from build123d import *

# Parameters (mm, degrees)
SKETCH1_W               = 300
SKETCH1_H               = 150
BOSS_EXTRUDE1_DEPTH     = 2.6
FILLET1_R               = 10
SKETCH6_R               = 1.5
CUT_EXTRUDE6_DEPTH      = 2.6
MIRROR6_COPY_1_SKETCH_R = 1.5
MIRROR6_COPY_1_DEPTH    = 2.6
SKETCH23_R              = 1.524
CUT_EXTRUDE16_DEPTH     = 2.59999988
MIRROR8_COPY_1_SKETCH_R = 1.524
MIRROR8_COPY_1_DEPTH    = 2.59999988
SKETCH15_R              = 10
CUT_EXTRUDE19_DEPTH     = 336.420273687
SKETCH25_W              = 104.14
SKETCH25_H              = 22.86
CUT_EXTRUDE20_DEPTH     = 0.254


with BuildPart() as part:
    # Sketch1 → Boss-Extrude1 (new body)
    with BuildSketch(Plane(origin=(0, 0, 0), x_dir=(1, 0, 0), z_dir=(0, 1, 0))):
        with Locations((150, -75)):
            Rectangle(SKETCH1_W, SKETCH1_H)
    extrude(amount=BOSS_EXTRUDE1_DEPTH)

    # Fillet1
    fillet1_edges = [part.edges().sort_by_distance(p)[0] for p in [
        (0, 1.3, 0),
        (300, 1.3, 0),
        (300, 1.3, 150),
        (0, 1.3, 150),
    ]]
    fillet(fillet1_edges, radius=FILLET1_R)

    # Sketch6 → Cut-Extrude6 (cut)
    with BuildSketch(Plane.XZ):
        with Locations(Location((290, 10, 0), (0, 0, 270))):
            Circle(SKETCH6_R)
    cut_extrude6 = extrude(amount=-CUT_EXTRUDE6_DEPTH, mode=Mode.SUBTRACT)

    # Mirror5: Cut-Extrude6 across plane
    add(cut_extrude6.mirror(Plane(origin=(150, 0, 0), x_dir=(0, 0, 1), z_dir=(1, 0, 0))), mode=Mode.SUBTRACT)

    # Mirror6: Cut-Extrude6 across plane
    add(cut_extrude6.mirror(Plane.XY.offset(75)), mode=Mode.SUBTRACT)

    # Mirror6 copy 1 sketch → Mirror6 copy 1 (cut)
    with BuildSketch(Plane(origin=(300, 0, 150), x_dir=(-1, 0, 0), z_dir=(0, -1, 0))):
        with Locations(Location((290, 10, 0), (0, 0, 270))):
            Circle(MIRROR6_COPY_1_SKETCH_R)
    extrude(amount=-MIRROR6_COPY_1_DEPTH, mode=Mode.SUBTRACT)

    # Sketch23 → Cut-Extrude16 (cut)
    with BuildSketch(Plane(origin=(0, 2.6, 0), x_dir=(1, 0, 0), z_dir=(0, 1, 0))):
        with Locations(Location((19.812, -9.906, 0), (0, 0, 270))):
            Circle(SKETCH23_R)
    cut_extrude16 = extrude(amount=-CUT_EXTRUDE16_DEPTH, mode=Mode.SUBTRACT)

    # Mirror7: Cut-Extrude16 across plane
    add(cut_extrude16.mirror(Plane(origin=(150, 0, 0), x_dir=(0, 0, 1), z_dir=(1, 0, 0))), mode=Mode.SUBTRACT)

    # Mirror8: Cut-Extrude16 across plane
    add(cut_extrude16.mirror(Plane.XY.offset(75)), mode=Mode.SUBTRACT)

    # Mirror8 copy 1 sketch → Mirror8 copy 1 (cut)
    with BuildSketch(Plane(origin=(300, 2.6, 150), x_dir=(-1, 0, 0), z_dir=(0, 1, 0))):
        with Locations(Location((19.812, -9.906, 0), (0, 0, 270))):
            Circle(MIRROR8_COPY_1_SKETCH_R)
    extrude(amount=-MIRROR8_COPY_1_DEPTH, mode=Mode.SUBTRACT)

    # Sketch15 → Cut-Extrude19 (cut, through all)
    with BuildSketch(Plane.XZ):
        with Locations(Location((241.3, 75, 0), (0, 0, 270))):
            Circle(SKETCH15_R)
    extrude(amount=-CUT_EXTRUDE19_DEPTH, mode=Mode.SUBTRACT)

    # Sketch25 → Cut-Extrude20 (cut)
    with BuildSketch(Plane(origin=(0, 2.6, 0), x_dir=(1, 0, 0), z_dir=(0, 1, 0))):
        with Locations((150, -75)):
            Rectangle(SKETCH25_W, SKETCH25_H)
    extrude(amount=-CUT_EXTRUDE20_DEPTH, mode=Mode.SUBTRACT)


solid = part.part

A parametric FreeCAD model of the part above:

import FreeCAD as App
import Part
import Sketcher

V = App.Vector


def edges_at(feature, points):
    """Names of the edges that pass closest to the given points."""
    edges = feature.Shape.Edges
    near = lambda p: min(range(len(edges)), key=lambda i: edges[i].distToShape(Part.Vertex(*p))[0])
    return sorted({f"Edge{near(p) + 1}" for p in points})


def add_polygon(sketch, points):
    """Adds a closed chain of lines whose ends are joined by coincident constraints."""
    first, n = sketch.GeometryCount, len(points)
    for a, b in zip(points, points[1:] + points[:1]):
        sketch.addGeometry(Part.LineSegment(App.Vector(*a, 0), App.Vector(*b, 0)), False)
    for i in range(n):
        sketch.addConstraint(Sketcher.Constraint("Coincident", first + i, 2, first + (i + 1) % n, 1))

doc = App.newDocument("Part")
body = doc.addObject("PartDesign::Body", "Body")

sketch1 = body.newObject("Sketcher::SketchObject", "Sketch")
sketch1.AttachmentSupport = (doc.getObject("XZ_Plane"), [""])
sketch1.MapMode = "FlatFace"
add_polygon(sketch1, [(0, 0), (0, 150), (300, 150), (300, 0)])
sketch1.addConstraint(Sketcher.Constraint("Vertical", 0))
sketch1.addConstraint(Sketcher.Constraint("Horizontal", 1))
sketch1.addConstraint(Sketcher.Constraint("Vertical", 2))
sketch1.addConstraint(Sketcher.Constraint("Horizontal", 3))
sketch1.addConstraint(Sketcher.Constraint("Coincident", 3, 2, -1, 1))
sketch1.addConstraint(Sketcher.Constraint("DistanceX", 1, 1, 1, 2, 300.0))
sketch1.addConstraint(Sketcher.Constraint("DistanceY", 0, 1, 0, 2, 150.0))
pad1 = body.newObject("PartDesign::Pad", "Pad")
pad1.Profile = sketch1
pad1.Length = 2.6
pad1.Reversed = True
doc.recompute()

fillet = body.newObject("PartDesign::Fillet", "Fillet")
fillet.Base = (pad1, edges_at(pad1, [
    (0, 1.3, 0),
    (300, 1.3, 0),
    (300, 1.3, 150),
    (0, 1.3, 150),
]))
fillet.Radius = 10

sketch2 = body.newObject("Sketcher::SketchObject", "Sketch001")
sketch2.AttachmentSupport = (doc.getObject("XZ_Plane"), [""])
sketch2.MapMode = "FlatFace"
sketch2.addGeometry(Part.Circle(V(290, 10, 0), V(0, 0, 1), 1.5), False)
sketch2.addConstraint(Sketcher.Constraint("Diameter", 0, 3.0))
sketch2.addConstraint(Sketcher.Constraint("DistanceX", -1, 1, 0, 3, 290.0))
sketch2.addConstraint(Sketcher.Constraint("DistanceY", -1, 1, 0, 3, 10.0))
pocket1 = body.newObject("PartDesign::Pocket", "Pocket")
pocket1.Profile = sketch2
pocket1.Length = 2.6
doc.recompute()

datumplane = body.newObject("PartDesign::Plane", "DatumPlane")
datumplane.AttachmentSupport = (doc.getObject("YZ_Plane"), [""])
datumplane.MapMode = "FlatFace"
datumplane.AttachmentOffset = App.Placement(V(0, 0, 150), App.Rotation())
mirrored = body.newObject("PartDesign::Mirrored", "Mirrored")
mirrored.Originals = [pocket1]
mirrored.MirrorPlane = (datumplane, [""])
body.Tip = mirrored
doc.recompute()

datumplane2 = body.newObject("PartDesign::Plane", "DatumPlane001")
datumplane2.AttachmentSupport = (doc.getObject("XY_Plane"), [""])
datumplane2.MapMode = "FlatFace"
datumplane2.AttachmentOffset = App.Placement(V(0, 0, 75), App.Rotation())
mirrored2 = body.newObject("PartDesign::Mirrored", "Mirrored001")
mirrored2.Originals = [pocket1]
mirrored2.MirrorPlane = (datumplane2, [""])
body.Tip = mirrored2

sketch3 = body.newObject("Sketcher::SketchObject", "Sketch002")
sketch3.AttachmentSupport = (doc.getObject("XZ_Plane"), [""])
sketch3.MapMode = "FlatFace"
sketch3.addGeometry(Part.Circle(V(10, 140, 0), V(0, 0, 1), 1.5), False)
sketch3.addConstraint(Sketcher.Constraint("Diameter", 0, 3.0))
sketch3.addConstraint(Sketcher.Constraint("DistanceX", -1, 1, 0, 3, 10.0))
sketch3.addConstraint(Sketcher.Constraint("DistanceY", -1, 1, 0, 3, 140.0))
pocket2 = body.newObject("PartDesign::Pocket", "Pocket001")
pocket2.Profile = sketch3
pocket2.Length = 2.6

sketch4 = body.newObject("Sketcher::SketchObject", "Sketch003")
sketch4.AttachmentSupport = (doc.getObject("XZ_Plane"), [""])
sketch4.MapMode = "FlatFace"
sketch4.AttachmentOffset = App.Placement(V(0, 0, -2.6), App.Rotation())
sketch4.addGeometry(Part.Circle(V(19.8, 9.9, 0), V(0, 0, 1), 1.5), False)
sketch4.addConstraint(Sketcher.Constraint("Diameter", 0, 3.048))
sketch4.addConstraint(Sketcher.Constraint("DistanceX", -1, 1, 0, 3, 19.812))
sketch4.addConstraint(Sketcher.Constraint("DistanceY", -1, 1, 0, 3, 9.906))
pocket3 = body.newObject("PartDesign::Pocket", "Pocket002")
pocket3.Profile = sketch4
pocket3.Length = 2.6
pocket3.Reversed = True
doc.recompute()

datumplane3 = body.newObject("PartDesign::Plane", "DatumPlane002")
datumplane3.AttachmentSupport = (doc.getObject("YZ_Plane"), [""])
datumplane3.MapMode = "FlatFace"
datumplane3.AttachmentOffset = App.Placement(V(0, 0, 150), App.Rotation())
mirrored3 = body.newObject("PartDesign::Mirrored", "Mirrored002")
mirrored3.Originals = [pocket3]
mirrored3.MirrorPlane = (datumplane3, [""])
body.Tip = mirrored3
doc.recompute()

datumplane4 = body.newObject("PartDesign::Plane", "DatumPlane003")
datumplane4.AttachmentSupport = (doc.getObject("XY_Plane"), [""])
datumplane4.MapMode = "FlatFace"
datumplane4.AttachmentOffset = App.Placement(V(0, 0, 75), App.Rotation())
mirrored4 = body.newObject("PartDesign::Mirrored", "Mirrored003")
mirrored4.Originals = [pocket3]
mirrored4.MirrorPlane = (datumplane4, [""])
body.Tip = mirrored4

sketch5 = body.newObject("Sketcher::SketchObject", "Sketch004")
sketch5.AttachmentSupport = (doc.getObject("XZ_Plane"), [""])
sketch5.MapMode = "FlatFace"
sketch5.AttachmentOffset = App.Placement(V(0, 0, -2.6), App.Rotation())
sketch5.addGeometry(Part.Circle(V(280.2, 140.1, 0), V(0, 0, 1), 1.5), False)
sketch5.addConstraint(Sketcher.Constraint("Diameter", 0, 3.048))
sketch5.addConstraint(Sketcher.Constraint("DistanceX", -1, 1, 0, 3, 280.188))
sketch5.addConstraint(Sketcher.Constraint("DistanceY", -1, 1, 0, 3, 140.094))
pocket4 = body.newObject("PartDesign::Pocket", "Pocket003")
pocket4.Profile = sketch5
pocket4.Length = 2.6
pocket4.Reversed = True

sketch6 = body.newObject("Sketcher::SketchObject", "Sketch005")
sketch6.AttachmentSupport = (doc.getObject("XZ_Plane"), [""])
sketch6.MapMode = "FlatFace"
sketch6.addGeometry(Part.Circle(V(241, 75, 0), V(0, 0, 1), 10), False)
sketch6.addConstraint(Sketcher.Constraint("Diameter", 0, 20.0))
sketch6.addConstraint(Sketcher.Constraint("DistanceY", -1, 1, 0, 3, 75.0))
sketch6.addConstraint(Sketcher.Constraint("DistanceX", -1, 1, 0, 3, 241.3))
pocket5 = body.newObject("PartDesign::Pocket", "Pocket004")
pocket5.Profile = sketch6
pocket5.Type = "ThroughAll"

sketch7 = body.newObject("Sketcher::SketchObject", "Sketch006")
sketch7.AttachmentSupport = (doc.getObject("XZ_Plane"), [""])
sketch7.MapMode = "FlatFace"
sketch7.AttachmentOffset = App.Placement(V(0, 0, -2.6), App.Rotation())
add_polygon(sketch7, [(98, 64), (98, 86), (202, 86), (202, 64)])
sketch7.addConstraint(Sketcher.Constraint("Vertical", 0))
sketch7.addConstraint(Sketcher.Constraint("Horizontal", 1))
sketch7.addConstraint(Sketcher.Constraint("Vertical", 2))
sketch7.addConstraint(Sketcher.Constraint("Horizontal", 3))
sketch7.addConstraint(Sketcher.Constraint("DistanceX", 1, 1, 1, 2, 104.14))
sketch7.addConstraint(Sketcher.Constraint("DistanceY", 0, 1, 0, 2, 22.86))
sketch7.addConstraint(Sketcher.Constraint("DistanceX", -1, 1, 0, 2, 97.93))
sketch7.addConstraint(Sketcher.Constraint("DistanceY", -1, 1, 0, 2, 86.43))
pocket6 = body.newObject("PartDesign::Pocket", "Pocket005")
pocket6.Profile = sketch7
pocket6.Length = 0.254
pocket6.Reversed = True

doc.recompute()
